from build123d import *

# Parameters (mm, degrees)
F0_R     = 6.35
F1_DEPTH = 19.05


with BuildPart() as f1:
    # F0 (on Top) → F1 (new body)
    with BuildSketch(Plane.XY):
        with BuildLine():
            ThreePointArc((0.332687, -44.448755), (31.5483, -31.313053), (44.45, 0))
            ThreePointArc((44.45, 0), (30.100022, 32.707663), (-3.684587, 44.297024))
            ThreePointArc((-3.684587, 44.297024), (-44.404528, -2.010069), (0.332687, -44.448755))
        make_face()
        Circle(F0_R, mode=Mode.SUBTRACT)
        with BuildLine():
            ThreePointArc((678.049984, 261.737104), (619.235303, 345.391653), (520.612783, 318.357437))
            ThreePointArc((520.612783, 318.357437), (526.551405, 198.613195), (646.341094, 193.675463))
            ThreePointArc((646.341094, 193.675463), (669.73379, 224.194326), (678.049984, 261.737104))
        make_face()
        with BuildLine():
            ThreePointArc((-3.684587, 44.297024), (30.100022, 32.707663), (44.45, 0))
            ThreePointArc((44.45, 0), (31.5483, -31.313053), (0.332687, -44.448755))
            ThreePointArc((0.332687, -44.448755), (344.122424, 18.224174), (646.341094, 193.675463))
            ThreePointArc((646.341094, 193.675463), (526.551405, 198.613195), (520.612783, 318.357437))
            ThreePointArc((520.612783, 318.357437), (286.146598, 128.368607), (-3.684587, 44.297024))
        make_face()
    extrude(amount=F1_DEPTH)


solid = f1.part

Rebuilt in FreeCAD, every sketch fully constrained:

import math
import FreeCAD as App
import Part
import Sketcher
from FreeCAD import Vector
Q = App.Units.Quantity

doc = App.newDocument("Part")
body = doc.addObject("PartDesign::Body", "Body")

# Sketch on XY plane
sketch1 = body.newObject("Sketcher::SketchObject", "Sketch")
sketch1.AttachmentSupport = (doc.getObject("XY_Plane"), [""])
sketch1.MapMode = "FlatFace"
sketch1.addGeometry([
    Part.ArcOfCircle(Part.Circle(Vector(0, 0, 0), Vector(0, 0, 1), 44), math.radians(95), math.radians(270)),  # 0
    Part.ArcOfCircle(Part.Circle(Vector(-7, 972, 0), Vector(0, 0, 1), 1016), math.radians(-90), math.radians(-50)),  # 1
    Part.ArcOfCircle(Part.Circle(Vector(589, 262, 0), Vector(0, 0, 1), 89), math.radians(-50), math.radians(0)),  # 2
    Part.ArcOfCircle(Part.Circle(Vector(589, 262, 0), Vector(0, 0, 1), 89), math.radians(0), math.radians(140)),  # 3
    Part.ArcOfCircle(Part.Circle(Vector(-67, 804, 0), Vector(0, 0, 1), 762), math.radians(-85), math.radians(-40)),  # 4
    Part.Circle(Vector(0, 0, 0), Vector(0, 0, 1), 6),  # 5
], False)
sketch1.addConstraint([
    Sketcher.Constraint("Tangent", 0, 2, 1, 1),
    Sketcher.Constraint("Tangent", 1, 2, 2, 1),
    Sketcher.Constraint("Tangent", 2, 2, 3, 1),
    Sketcher.Constraint("Tangent", 3, 2, 4, 2),
    Sketcher.Constraint("Tangent", 4, 1, 0, 1),
    Sketcher.Constraint("Coincident", 0, 3, -1, 1),
    Sketcher.Constraint("Coincident", 5, 3, -1, 1),
    Sketcher.Constraint("Horizontal", 3, 3, 2, 2),
    Sketcher.Constraint("Radius", 4, Q("30.0000001 in")),
    Sketcher.Constraint("Diameter", 5, Q("0.5 in")),
    Sketcher.Constraint("Radius", 2, Q("3.5000001 in")),
    Sketcher.Constraint("Radius", 3, Q("3.5 in")),
    Sketcher.Constraint("Radius", 0, Q("1.75 in")),
    Sketcher.Constraint("Radius", 1, Q("1016.000008 mm")),
    Sketcher.Constraint("DistanceX", -1, 1, 2, 3, Q("589.149981 mm")),
    Sketcher.Constraint("DistanceX", 4, 3, -1, 1, Q("66.848941 mm")),
])
pad1 = body.newObject("PartDesign::Pad", "Pad")
pad1.Profile = sketch1
pad1.Length = Q("0.75 in")

doc.recompute()
